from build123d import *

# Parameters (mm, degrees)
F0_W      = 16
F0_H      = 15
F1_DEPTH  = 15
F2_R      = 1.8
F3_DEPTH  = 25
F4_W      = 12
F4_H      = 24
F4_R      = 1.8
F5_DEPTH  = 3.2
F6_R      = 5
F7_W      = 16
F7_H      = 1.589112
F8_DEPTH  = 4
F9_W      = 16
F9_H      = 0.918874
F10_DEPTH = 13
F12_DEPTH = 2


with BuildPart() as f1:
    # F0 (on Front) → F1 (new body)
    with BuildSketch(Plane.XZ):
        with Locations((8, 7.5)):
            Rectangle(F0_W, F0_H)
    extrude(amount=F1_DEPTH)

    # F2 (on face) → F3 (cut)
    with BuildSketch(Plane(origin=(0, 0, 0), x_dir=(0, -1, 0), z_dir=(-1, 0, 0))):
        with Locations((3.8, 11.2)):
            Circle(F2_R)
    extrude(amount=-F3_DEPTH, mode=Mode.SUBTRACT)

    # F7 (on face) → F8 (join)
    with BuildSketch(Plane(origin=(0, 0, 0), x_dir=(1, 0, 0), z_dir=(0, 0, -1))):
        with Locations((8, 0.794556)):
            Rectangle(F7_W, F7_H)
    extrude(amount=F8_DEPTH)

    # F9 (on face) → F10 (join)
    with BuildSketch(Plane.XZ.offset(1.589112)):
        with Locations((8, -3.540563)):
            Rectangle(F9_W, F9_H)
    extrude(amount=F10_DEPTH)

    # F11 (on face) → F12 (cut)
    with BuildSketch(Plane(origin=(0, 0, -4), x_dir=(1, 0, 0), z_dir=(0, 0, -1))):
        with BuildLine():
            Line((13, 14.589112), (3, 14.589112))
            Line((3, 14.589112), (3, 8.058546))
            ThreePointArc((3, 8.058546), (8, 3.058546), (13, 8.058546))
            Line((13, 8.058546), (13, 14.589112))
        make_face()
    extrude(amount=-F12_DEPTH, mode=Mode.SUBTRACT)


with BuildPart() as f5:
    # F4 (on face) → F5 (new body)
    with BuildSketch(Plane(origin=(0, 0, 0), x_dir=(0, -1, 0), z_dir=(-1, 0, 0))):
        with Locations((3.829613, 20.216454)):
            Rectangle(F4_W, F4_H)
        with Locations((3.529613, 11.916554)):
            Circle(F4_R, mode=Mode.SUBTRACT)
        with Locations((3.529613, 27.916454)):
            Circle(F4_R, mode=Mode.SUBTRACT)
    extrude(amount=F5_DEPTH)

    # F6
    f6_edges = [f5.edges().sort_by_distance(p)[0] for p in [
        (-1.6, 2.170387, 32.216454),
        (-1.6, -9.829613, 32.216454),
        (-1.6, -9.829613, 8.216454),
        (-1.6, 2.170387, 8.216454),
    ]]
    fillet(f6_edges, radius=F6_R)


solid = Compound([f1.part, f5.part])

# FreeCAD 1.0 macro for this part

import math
import FreeCAD as App
import Part
import Sketcher

V = App.Vector


def edges_at(feature, points):
    """Names of the edges that pass closest to the given points."""
    edges = feature.Shape.Edges
    near = lambda p: min(range(len(edges)), key=lambda i: edges[i].distToShape(Part.Vertex(*p))[0])
    return sorted({f"Edge{near(p) + 1}" for p in points})


def add_polygon(sketch, points):
    """Adds a closed chain of lines whose ends are joined by coincident constraints."""
    first, n = sketch.GeometryCount, len(points)
    for a, b in zip(points, points[1:] + points[:1]):
        sketch.addGeometry(Part.LineSegment(App.Vector(*a, 0), App.Vector(*b, 0)), False)
    for i in range(n):
        sketch.addConstraint(Sketcher.Constraint("Coincident", first + i, 2, first + (i + 1) % n, 1))

doc = App.newDocument("Part")
body = doc.addObject("PartDesign::Body", "Body")

sketch1 = body.newObject("Sketcher::SketchObject", "Sketch")
sketch1.AttachmentSupport = (doc.getObject("XZ_Plane"), [""])
sketch1.MapMode = "FlatFace"
add_polygon(sketch1, [(0, 15), (0, 0), (16, 0), (16, 15)])
sketch1.addConstraint([
    Sketcher.Constraint("Vertical", 0),
    Sketcher.Constraint("Horizontal", 1),
    Sketcher.Constraint("Vertical", 2),
    Sketcher.Constraint("Horizontal", 3),
    Sketcher.Constraint("Coincident", 0, 2, -1, 1),
    Sketcher.Constraint("DistanceX", 1, 1, 1, 2, 16.0),
    Sketcher.Constraint("DistanceY", 0, 2, 0, 1, 15.0),
])
pad1 = body.newObject("PartDesign::Pad", "Pad")
pad1.Profile = sketch1
pad1.Length = 15

sketch2 = body.newObject("Sketcher::SketchObject", "Sketch001")
sketch2.AttachmentSupport = (doc.getObject("YZ_Plane"), [""])
sketch2.MapMode = "FlatFace"
sketch2.addGeometry(Part.Circle(V(-3.8, 11.2, 0), V(0, 0, 1), 1.8), False)
sketch2.addConstraint([
    Sketcher.Constraint("Diameter", 0, 3.6),
    Sketcher.Constraint("DistanceX", 0, 3, -1, 1, 3.8),
    Sketcher.Constraint("DistanceY", -1, 1, 0, 3, 11.2),
])
pocket1 = body.newObject("PartDesign::Pocket", "Pocket")
pocket1.Profile = sketch2
pocket1.Length = 25
pocket1.Reversed = True

sketch3 = body.newObject("Sketcher::SketchObject", "Sketch002")
sketch3.AttachmentSupport = (doc.getObject("XY_Plane"), [""])
sketch3.MapMode = "FlatFace"
add_polygon(sketch3, [(0, -1.6), (0, 0), (16, 0), (16, -1.6)])
sketch3.addConstraint([
    Sketcher.Constraint("Vertical", 0),
    Sketcher.Constraint("Horizontal", 1),
    Sketcher.Constraint("Vertical", 2),
    Sketcher.Constraint("Horizontal", 3),
    Sketcher.Constraint("Coincident", 0, 2, -1, 1),
    Sketcher.Constraint("DistanceX", 1, 1, 1, 2, 16.0),
    Sketcher.Constraint("DistanceY", 0, 1, 0, 2, 1.589112),
])
pad2 = body.newObject("PartDesign::Pad", "Pad001")
pad2.Profile = sketch3
pad2.Length = 4
pad2.Reversed = True

sketch4 = body.newObject("Sketcher::SketchObject", "Sketch003")
sketch4.AttachmentSupport = (doc.getObject("XZ_Plane"), [""])
sketch4.MapMode = "FlatFace"
sketch4.AttachmentOffset = App.Placement(V(0, 0, 1.589112), App.Rotation())
add_polygon(sketch4, [(0, -3.1), (0, -4), (16, -4), (16, -3.1)])
sketch4.addConstraint([
    Sketcher.Constraint("Vertical", 0),
    Sketcher.Constraint("Horizontal", 1),
    Sketcher.Constraint("Vertical", 2),
    Sketcher.Constraint("Horizontal", 3),
    Sketcher.Constraint("PointOnObject", 0, 2, -2),
    Sketcher.Constraint("DistanceX", 1, 1, 1, 2, 16.0),
    Sketcher.Constraint("DistanceY", 0, 2, -1, 1, 4.0),
    Sketcher.Constraint("DistanceY", 0, 2, 0, 1, 0.918874),
])
pad3 = body.newObject("PartDesign::Pad", "Pad002")
pad3.Profile = sketch4
pad3.Length = 13

sketch5 = body.newObject("Sketcher::SketchObject", "Sketch004")
sketch5.AttachmentSupport = (doc.getObject("XY_Plane"), [""])
sketch5.MapMode = "FlatFace"
sketch5.AttachmentOffset = App.Placement(V(0, 0, -4), App.Rotation())
sketch5.addGeometry([
    Part.LineSegment(V(13, -15, 0), V(3, -15, 0)),
    Part.LineSegment(V(3, -15, 0), V(3, -8, 0)),
    Part.ArcOfCircle(Part.Circle(V(8, -8, 0), V(0, 0, 1), 5), math.radians(0), math.radians(180)),
    Part.LineSegment(V(13, -8, 0), V(13, -15, 0)),
], False)
sketch5.addConstraint([
    Sketcher.Constraint("Coincident", 0, 2, 1, 1),
    Sketcher.Constraint("Tangent", 1, 2, 2, 2),
    Sketcher.Constraint("Tangent", 2, 1, 3, 1),
    Sketcher.Constraint("Coincident", 3, 2, 0, 1),
    Sketcher.Constraint("Horizontal", 0),
    Sketcher.Constraint("Vertical", 1),
    Sketcher.Constraint("Vertical", 3),
    Sketcher.Constraint("Radius", 2, 5.0),
    Sketcher.Constraint("DistanceX", -1, 1, 2, 3, 8.0),
    Sketcher.Constraint("DistanceY", 1, 1, 1, 2, 6.530566),
    Sketcher.Constraint("DistanceY", 2, 3, -1, 1, 8.058546),
])
pocket2 = body.newObject("PartDesign::Pocket", "Pocket001")
pocket2.Profile = sketch5
pocket2.Length = 2
pocket2.Reversed = True
body2 = doc.addObject("PartDesign::Body", "Body001")

sketch6 = body2.newObject("Sketcher::SketchObject", "Sketch005")
sketch6.AttachmentSupport = (doc.getObject("YZ_Plane001"), [""])
sketch6.MapMode = "FlatFace"
add_polygon(sketch6, [(2.2, 32.2), (2.2, 8.2), (-9.8, 8.2), (-9.8, 32.2)])
sketch6.addGeometry(Part.Circle(V(-3.5, 11.9, 0), V(0, 0, 1), 1.8), False)
sketch6.addGeometry(Part.Circle(V(-3.5, 27.9, 0), V(0, 0, 1), 1.8), False)
sketch6.addConstraint([
    Sketcher.Constraint("Vertical", 0),
    Sketcher.Constraint("Horizontal", 1),
    Sketcher.Constraint("Vertical", 2),
    Sketcher.Constraint("Horizontal", 3),
    Sketcher.Constraint("Equal", 4, 5),
    Sketcher.Constraint("Vertical", 4, 3, 5, 3),
    Sketcher.Constraint("Diameter", 4, 3.6),
    Sketcher.Constraint("DistanceX", 1, 2, 1, 1, 12.0),
    Sketcher.Constraint("DistanceY", 0, 2, 0, 1, 24.0),
    Sketcher.Constraint("DistanceX", 4, 3, 0, 2, 5.7),
    Sketcher.Constraint("DistanceY", 0, 2, 5, 3, 19.7),
    Sketcher.Constraint("DistanceY", 4, 3, 5, 3, 15.9999),
    Sketcher.Constraint("DistanceX", 4, 3, -1, 1, 3.529613),
    Sketcher.Constraint("DistanceY", -1, 1, 4, 3, 11.916554),
])
pad4 = body2.newObject("PartDesign::Pad", "Pad003")
pad4.Profile = sketch6
pad4.Length = 3.2
pad4.Reversed = True
doc.recompute()

fillet = body2.newObject("PartDesign::Fillet", "Fillet")
fillet.Base = (pad4, edges_at(pad4, [
    (-1.6, 2.17, 32.216),
    (-1.6, -9.83, 32.216),
    (-1.6, -9.83, 8.216),
    (-1.6, 2.17, 8.216),
]))
fillet.Radius = 5

doc.recompute()
